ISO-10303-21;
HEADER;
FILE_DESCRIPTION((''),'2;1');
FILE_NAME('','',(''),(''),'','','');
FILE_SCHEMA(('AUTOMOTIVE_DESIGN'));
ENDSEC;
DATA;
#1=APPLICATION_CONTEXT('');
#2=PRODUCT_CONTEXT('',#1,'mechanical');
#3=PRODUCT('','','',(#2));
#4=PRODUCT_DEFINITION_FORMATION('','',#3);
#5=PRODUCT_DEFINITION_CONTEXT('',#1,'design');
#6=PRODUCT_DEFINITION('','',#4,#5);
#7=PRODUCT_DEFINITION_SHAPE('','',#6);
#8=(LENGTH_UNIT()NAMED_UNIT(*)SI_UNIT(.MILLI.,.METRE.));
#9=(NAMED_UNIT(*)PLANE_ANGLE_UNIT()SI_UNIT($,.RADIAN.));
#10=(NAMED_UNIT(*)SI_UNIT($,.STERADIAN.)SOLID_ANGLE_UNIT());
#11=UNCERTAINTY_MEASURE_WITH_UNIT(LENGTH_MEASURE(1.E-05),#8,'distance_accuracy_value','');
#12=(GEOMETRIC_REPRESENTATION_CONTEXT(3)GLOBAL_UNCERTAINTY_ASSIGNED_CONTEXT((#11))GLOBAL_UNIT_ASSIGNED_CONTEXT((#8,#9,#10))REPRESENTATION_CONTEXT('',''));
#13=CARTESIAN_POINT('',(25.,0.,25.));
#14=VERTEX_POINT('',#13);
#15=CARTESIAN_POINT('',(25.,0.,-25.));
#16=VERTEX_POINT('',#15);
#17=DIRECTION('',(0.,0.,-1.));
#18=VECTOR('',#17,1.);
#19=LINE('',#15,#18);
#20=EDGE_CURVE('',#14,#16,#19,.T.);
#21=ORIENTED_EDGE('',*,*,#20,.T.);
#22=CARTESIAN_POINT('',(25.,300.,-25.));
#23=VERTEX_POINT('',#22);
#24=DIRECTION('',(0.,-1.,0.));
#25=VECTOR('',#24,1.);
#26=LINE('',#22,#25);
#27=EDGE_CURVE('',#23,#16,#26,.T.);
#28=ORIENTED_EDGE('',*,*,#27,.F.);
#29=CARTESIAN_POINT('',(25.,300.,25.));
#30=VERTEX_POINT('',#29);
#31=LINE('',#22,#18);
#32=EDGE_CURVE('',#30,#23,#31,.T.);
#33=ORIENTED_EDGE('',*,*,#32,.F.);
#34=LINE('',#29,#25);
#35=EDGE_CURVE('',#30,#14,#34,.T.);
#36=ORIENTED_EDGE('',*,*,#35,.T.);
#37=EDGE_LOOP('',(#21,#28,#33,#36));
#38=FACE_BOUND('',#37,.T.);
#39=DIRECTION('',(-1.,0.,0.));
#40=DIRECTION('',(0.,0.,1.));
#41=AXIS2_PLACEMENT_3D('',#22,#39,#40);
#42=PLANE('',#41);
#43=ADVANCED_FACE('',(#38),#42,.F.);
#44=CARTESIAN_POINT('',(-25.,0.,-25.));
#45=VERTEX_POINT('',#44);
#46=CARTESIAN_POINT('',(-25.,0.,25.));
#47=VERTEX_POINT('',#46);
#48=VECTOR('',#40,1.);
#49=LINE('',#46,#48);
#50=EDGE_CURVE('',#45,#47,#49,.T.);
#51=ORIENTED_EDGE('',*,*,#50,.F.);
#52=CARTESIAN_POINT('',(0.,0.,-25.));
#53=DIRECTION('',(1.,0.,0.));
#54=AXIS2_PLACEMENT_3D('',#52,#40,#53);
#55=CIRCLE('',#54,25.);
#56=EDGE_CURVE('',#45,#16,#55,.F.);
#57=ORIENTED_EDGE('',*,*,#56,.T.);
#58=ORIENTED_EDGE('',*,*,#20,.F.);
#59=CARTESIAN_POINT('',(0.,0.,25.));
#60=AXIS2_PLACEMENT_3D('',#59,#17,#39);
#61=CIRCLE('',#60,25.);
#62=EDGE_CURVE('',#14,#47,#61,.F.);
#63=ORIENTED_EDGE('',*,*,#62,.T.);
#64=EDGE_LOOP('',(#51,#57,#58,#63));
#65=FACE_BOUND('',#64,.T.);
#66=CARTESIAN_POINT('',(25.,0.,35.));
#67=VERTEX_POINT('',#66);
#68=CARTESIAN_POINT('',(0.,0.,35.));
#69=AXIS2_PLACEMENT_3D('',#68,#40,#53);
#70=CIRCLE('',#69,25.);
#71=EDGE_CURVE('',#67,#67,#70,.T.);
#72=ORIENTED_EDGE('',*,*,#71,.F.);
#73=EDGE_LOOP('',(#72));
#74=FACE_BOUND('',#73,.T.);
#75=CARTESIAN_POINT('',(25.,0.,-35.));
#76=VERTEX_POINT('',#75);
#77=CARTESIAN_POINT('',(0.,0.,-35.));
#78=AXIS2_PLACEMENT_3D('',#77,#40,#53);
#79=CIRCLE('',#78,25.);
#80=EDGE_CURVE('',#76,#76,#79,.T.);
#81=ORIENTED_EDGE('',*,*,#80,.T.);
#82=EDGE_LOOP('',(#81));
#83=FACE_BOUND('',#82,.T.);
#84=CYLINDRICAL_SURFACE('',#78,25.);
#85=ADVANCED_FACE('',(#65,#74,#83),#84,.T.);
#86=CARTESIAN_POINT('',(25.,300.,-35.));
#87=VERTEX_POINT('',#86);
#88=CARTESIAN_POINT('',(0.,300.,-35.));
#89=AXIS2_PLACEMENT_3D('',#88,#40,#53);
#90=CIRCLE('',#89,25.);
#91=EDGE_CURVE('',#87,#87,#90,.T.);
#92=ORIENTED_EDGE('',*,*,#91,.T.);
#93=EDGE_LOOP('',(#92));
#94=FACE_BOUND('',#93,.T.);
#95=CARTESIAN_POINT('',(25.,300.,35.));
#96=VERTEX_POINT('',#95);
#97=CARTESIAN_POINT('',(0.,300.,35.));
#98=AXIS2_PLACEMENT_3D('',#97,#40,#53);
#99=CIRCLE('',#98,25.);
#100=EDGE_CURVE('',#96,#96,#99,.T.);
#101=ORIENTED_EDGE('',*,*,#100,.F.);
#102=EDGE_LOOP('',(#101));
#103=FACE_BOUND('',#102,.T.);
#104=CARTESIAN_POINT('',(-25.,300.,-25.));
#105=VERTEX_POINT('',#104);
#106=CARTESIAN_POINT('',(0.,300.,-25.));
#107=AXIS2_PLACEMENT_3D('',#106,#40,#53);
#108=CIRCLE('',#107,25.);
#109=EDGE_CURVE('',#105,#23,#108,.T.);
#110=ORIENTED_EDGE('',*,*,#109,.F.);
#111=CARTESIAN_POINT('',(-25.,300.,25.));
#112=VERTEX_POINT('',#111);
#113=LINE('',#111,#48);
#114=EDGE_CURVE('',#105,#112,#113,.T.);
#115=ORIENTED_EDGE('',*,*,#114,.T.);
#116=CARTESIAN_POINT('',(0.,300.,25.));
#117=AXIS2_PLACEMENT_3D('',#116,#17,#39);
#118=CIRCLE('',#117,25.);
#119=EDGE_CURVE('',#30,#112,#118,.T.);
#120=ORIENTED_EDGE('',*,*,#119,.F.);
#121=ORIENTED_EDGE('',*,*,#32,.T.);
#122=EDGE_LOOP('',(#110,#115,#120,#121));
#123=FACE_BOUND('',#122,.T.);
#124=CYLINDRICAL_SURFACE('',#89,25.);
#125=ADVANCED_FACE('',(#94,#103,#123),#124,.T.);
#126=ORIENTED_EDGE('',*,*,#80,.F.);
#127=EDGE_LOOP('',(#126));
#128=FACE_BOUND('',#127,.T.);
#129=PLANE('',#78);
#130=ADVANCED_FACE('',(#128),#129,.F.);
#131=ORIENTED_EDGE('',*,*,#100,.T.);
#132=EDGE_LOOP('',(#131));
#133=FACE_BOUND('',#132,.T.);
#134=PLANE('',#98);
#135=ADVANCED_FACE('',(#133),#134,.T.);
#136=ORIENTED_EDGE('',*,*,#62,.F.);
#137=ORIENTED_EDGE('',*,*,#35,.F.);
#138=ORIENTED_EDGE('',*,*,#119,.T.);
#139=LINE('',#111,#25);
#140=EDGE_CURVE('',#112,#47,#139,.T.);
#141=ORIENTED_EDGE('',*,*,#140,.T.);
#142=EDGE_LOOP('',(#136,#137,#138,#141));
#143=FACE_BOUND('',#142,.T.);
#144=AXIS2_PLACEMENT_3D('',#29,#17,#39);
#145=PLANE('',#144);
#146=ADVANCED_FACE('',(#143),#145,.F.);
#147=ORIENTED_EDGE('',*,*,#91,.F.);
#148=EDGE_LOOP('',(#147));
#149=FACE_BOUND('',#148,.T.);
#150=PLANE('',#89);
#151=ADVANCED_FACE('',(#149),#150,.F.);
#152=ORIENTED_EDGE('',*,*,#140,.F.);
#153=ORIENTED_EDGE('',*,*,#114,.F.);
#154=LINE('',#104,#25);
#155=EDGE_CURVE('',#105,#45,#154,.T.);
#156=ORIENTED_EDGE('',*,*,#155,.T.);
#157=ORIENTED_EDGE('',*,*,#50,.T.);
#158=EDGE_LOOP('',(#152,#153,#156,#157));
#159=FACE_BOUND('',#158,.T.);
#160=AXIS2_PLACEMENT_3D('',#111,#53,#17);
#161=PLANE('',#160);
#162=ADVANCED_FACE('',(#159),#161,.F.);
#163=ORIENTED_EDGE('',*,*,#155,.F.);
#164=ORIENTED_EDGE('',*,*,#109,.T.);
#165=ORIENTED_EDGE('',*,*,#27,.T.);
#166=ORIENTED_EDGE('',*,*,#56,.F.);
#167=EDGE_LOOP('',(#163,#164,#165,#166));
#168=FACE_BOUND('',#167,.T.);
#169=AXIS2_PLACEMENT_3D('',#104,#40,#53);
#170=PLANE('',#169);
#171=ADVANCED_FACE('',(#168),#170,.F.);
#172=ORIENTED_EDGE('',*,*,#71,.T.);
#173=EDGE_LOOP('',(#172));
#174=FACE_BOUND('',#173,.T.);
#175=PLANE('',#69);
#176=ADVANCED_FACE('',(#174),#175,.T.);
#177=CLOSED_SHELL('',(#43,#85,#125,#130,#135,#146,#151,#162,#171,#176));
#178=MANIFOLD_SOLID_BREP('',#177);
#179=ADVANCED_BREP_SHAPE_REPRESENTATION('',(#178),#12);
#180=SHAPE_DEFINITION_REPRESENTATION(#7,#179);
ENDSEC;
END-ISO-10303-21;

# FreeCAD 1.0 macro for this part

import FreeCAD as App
import Part
import Sketcher

V = App.Vector
Q = App.Units.Quantity

doc = App.newDocument("Part")
body = doc.addObject("PartDesign::Body", "Body")

# Sketch on XY plane
sketch1 = body.newObject("Sketcher::SketchObject", "Sketch")
sketch1.AttachmentSupport = (doc.getObject("XY_Plane"), [""])
sketch1.MapMode = "FlatFace"
sketch1.addGeometry(Part.Circle(V(0, 0, 0), V(0, 0, 1), 25), False)
sketch1.addConstraint([
    Sketcher.Constraint("Coincident", 0, 3, -1, 1),
    Sketcher.Constraint("Diameter", 0, Q("50 mm")),
])
pad1 = body.newObject("PartDesign::Pad", "Pad")
pad1.Profile = sketch1
pad1.Type = "TwoLengths"
pad1.Length = 35
pad1.Length2 = 35

# Sketch on XZ plane
sketch2 = body.newObject("Sketcher::SketchObject", "Sketch001")
sketch2.AttachmentSupport = (doc.getObject("XZ_Plane"), [""])
sketch2.MapMode = "FlatFace"
sketch2.addGeometry([
    Part.LineSegment(V(-25, -25, 0), V(-25, 25, 0)),
    Part.LineSegment(V(-25, 25, 0), V(25, 25, 0)),
    Part.LineSegment(V(25, 25, 0), V(25, -25, 0)),
    Part.LineSegment(V(25, -25, 0), V(-25, -25, 0)),
], False)
sketch2.addConstraint([
    Sketcher.Constraint("Coincident", 0, 2, 1, 1),
    Sketcher.Constraint("Coincident", 1, 2, 2, 1),
    Sketcher.Constraint("Coincident", 2, 2, 3, 1),
    Sketcher.Constraint("Coincident", 3, 2, 0, 1),
    Sketcher.Constraint("Vertical", 0),
    Sketcher.Constraint("Horizontal", 1),
    Sketcher.Constraint("Vertical", 2),
    Sketcher.Constraint("Horizontal", 3),
    Sketcher.Constraint("Symmetric", 0, 2, 2, 2, -1, 1),
    Sketcher.Constraint("Equal", 3, 0),
    Sketcher.Constraint("DistanceX", 1, 1, 1, 2, Q("50 mm")),
])
pad2 = body.newObject("PartDesign::Pad", "Pad001")
pad2.Profile = sketch2
pad2.Length = 300
pad2.Reversed = True

# Sketch on XY plane
sketch3 = body.newObject("Sketcher::SketchObject", "Sketch002")
sketch3.AttachmentSupport = (doc.getObject("XY_Plane"), [""])
sketch3.MapMode = "FlatFace"
sketch3.addGeometry(Part.Circle(V(0, 300, 0), V(0, 0, 1), 25), False)
sketch3.addConstraint([
    Sketcher.Constraint("PointOnObject", 0, 3, -2),
    Sketcher.Constraint("Diameter", 0, Q("50 mm")),
    Sketcher.Constraint("DistanceY", -1, 1, 0, 3, Q("300 mm")),
])
pad3 = body.newObject("PartDesign::Pad", "Pad002")
pad3.Profile = sketch3
pad3.Type = "TwoLengths"
pad3.Length = 35
pad3.Length2 = 35

doc.recompute()
